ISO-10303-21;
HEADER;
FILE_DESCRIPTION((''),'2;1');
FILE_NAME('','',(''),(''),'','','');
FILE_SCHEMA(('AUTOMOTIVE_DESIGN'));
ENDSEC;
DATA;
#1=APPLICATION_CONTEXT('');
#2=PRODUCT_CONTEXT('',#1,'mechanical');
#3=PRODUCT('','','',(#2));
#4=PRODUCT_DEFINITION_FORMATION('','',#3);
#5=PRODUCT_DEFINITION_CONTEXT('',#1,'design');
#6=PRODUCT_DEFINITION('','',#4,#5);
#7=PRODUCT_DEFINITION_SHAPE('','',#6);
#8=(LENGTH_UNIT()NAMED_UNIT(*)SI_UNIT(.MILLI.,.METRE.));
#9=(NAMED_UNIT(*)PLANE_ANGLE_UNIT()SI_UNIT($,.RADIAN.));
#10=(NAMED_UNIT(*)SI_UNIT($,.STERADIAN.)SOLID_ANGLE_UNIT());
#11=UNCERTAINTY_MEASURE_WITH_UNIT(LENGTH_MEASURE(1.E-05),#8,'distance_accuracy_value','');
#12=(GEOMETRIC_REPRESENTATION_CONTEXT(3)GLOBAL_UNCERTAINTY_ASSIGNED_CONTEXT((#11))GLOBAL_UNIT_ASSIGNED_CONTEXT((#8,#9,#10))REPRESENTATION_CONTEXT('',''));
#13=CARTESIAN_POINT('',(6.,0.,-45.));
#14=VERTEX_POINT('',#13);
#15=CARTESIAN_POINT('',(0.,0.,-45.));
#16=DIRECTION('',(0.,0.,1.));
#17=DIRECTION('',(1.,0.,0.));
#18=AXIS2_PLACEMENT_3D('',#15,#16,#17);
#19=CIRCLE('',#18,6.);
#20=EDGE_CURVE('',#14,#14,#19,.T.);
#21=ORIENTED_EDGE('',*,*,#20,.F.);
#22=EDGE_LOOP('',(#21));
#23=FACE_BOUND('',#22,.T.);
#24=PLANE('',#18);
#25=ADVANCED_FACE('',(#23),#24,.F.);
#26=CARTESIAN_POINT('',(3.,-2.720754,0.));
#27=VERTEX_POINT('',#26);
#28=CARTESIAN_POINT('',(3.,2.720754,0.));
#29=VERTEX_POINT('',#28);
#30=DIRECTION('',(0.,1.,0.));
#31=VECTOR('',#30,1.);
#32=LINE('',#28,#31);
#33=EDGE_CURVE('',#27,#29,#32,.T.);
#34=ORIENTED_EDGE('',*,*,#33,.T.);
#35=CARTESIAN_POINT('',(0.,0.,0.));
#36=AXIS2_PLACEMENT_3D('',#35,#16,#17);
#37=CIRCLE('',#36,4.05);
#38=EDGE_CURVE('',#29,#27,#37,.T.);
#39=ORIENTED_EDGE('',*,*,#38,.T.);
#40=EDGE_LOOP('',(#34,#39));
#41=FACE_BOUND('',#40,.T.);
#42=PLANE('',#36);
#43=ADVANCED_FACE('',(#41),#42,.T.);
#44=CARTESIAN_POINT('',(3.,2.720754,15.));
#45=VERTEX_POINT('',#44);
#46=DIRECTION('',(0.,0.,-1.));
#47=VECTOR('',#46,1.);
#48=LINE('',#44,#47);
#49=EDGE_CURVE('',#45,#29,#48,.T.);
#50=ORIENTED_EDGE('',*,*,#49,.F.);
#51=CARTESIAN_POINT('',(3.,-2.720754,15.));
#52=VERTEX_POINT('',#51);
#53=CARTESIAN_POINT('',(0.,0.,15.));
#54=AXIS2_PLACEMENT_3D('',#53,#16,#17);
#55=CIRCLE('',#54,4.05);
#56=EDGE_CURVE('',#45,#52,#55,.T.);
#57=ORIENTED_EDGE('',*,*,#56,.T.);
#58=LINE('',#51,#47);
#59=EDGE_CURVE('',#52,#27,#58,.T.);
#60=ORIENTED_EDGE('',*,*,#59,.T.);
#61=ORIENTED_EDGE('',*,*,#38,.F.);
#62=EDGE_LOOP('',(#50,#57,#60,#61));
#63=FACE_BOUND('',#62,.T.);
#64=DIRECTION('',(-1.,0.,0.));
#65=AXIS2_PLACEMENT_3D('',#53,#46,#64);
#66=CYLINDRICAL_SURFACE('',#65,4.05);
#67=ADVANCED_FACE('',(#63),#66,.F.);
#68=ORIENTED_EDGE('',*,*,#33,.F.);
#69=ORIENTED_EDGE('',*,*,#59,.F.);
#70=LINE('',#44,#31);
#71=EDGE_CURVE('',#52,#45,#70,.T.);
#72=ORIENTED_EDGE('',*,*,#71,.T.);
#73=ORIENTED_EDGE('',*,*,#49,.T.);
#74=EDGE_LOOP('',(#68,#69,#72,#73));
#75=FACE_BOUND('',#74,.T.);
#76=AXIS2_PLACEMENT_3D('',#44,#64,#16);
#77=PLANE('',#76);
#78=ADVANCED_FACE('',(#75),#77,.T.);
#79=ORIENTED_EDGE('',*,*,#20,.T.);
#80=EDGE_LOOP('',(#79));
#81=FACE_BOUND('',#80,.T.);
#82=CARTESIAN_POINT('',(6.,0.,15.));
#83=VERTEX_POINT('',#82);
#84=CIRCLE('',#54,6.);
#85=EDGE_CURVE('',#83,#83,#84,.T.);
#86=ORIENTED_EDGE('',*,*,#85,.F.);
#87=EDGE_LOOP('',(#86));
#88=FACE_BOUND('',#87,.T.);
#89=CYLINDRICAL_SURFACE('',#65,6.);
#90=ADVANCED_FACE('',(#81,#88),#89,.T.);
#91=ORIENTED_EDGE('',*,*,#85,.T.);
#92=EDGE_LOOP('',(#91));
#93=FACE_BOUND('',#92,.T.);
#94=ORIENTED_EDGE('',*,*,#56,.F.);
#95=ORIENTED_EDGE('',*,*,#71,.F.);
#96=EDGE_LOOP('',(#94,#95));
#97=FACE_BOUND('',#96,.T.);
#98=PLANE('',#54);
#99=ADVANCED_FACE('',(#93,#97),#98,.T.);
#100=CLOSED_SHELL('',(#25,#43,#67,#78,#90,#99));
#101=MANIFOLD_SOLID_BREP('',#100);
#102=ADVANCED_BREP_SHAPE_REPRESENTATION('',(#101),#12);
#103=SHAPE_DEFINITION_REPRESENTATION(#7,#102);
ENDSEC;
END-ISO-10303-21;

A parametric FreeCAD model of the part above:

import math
import FreeCAD as App
import Part
import Sketcher

V = App.Vector

doc = App.newDocument("Part")
body = doc.addObject("PartDesign::Body", "Body")

sketch1 = doc.addObject("Sketcher::SketchObject", "Sketch")
body.addObject(sketch1)
sketch1.AttachmentSupport = (doc.XY_Plane, [""])
sketch1.MapMode = "FlatFace"
sketch1.addGeometry(Part.Circle(V(0, 0, 0), V(0, 0, 1), 6), False)
sketch1.addGeometry(Part.ArcOfCircle(Part.Circle(V(0, 0, 0), V(0, 0, 1), 4), math.radians(42), math.radians(318)), False)
sketch1.addGeometry(Part.LineSegment(V(3, 2.7, 0), V(3, -2.7, 0)), False)
sketch1.addConstraint(Sketcher.Constraint("Coincident", 1, 1, 2, 1))
sketch1.addConstraint(Sketcher.Constraint("Coincident", 2, 2, 1, 2))
sketch1.addConstraint(Sketcher.Constraint("Vertical", 2))
sketch1.addConstraint(Sketcher.Constraint("Coincident", 0, 3, -1, 1))
sketch1.addConstraint(Sketcher.Constraint("Coincident", 1, 3, -1, 1))
sketch1.addConstraint(Sketcher.Constraint("Diameter", 0, 12.0))
sketch1.addConstraint(Sketcher.Constraint("Radius", 1, 4.05))
sketch1.addConstraint(Sketcher.Constraint("DistanceX", -1, 1, 1, 1, 3.0))
pad1 = doc.addObject("PartDesign::Pad", "Pad")
body.addObject(pad1)
pad1.Profile = sketch1
pad1.Length = 15

sketch2 = doc.addObject("Sketcher::SketchObject", "Sketch001")
body.addObject(sketch2)
sketch2.AttachmentSupport = (doc.XY_Plane, [""])
sketch2.MapMode = "FlatFace"
sketch2.AttachmentOffset = App.Placement(V(0, 0, -45), App.Rotation())
sketch2.addGeometry(Part.Circle(V(0, 0, 0), V(0, 0, 1), 6), False)
sketch2.addConstraint(Sketcher.Constraint("Coincident", 0, 3, -1, 1))
sketch2.addConstraint(Sketcher.Constraint("Diameter", 0, 12.0))
pad2 = doc.addObject("PartDesign::Pad", "Pad001")
body.addObject(pad2)
pad2.Profile = sketch2
pad2.Length = 45

doc.recompute()
